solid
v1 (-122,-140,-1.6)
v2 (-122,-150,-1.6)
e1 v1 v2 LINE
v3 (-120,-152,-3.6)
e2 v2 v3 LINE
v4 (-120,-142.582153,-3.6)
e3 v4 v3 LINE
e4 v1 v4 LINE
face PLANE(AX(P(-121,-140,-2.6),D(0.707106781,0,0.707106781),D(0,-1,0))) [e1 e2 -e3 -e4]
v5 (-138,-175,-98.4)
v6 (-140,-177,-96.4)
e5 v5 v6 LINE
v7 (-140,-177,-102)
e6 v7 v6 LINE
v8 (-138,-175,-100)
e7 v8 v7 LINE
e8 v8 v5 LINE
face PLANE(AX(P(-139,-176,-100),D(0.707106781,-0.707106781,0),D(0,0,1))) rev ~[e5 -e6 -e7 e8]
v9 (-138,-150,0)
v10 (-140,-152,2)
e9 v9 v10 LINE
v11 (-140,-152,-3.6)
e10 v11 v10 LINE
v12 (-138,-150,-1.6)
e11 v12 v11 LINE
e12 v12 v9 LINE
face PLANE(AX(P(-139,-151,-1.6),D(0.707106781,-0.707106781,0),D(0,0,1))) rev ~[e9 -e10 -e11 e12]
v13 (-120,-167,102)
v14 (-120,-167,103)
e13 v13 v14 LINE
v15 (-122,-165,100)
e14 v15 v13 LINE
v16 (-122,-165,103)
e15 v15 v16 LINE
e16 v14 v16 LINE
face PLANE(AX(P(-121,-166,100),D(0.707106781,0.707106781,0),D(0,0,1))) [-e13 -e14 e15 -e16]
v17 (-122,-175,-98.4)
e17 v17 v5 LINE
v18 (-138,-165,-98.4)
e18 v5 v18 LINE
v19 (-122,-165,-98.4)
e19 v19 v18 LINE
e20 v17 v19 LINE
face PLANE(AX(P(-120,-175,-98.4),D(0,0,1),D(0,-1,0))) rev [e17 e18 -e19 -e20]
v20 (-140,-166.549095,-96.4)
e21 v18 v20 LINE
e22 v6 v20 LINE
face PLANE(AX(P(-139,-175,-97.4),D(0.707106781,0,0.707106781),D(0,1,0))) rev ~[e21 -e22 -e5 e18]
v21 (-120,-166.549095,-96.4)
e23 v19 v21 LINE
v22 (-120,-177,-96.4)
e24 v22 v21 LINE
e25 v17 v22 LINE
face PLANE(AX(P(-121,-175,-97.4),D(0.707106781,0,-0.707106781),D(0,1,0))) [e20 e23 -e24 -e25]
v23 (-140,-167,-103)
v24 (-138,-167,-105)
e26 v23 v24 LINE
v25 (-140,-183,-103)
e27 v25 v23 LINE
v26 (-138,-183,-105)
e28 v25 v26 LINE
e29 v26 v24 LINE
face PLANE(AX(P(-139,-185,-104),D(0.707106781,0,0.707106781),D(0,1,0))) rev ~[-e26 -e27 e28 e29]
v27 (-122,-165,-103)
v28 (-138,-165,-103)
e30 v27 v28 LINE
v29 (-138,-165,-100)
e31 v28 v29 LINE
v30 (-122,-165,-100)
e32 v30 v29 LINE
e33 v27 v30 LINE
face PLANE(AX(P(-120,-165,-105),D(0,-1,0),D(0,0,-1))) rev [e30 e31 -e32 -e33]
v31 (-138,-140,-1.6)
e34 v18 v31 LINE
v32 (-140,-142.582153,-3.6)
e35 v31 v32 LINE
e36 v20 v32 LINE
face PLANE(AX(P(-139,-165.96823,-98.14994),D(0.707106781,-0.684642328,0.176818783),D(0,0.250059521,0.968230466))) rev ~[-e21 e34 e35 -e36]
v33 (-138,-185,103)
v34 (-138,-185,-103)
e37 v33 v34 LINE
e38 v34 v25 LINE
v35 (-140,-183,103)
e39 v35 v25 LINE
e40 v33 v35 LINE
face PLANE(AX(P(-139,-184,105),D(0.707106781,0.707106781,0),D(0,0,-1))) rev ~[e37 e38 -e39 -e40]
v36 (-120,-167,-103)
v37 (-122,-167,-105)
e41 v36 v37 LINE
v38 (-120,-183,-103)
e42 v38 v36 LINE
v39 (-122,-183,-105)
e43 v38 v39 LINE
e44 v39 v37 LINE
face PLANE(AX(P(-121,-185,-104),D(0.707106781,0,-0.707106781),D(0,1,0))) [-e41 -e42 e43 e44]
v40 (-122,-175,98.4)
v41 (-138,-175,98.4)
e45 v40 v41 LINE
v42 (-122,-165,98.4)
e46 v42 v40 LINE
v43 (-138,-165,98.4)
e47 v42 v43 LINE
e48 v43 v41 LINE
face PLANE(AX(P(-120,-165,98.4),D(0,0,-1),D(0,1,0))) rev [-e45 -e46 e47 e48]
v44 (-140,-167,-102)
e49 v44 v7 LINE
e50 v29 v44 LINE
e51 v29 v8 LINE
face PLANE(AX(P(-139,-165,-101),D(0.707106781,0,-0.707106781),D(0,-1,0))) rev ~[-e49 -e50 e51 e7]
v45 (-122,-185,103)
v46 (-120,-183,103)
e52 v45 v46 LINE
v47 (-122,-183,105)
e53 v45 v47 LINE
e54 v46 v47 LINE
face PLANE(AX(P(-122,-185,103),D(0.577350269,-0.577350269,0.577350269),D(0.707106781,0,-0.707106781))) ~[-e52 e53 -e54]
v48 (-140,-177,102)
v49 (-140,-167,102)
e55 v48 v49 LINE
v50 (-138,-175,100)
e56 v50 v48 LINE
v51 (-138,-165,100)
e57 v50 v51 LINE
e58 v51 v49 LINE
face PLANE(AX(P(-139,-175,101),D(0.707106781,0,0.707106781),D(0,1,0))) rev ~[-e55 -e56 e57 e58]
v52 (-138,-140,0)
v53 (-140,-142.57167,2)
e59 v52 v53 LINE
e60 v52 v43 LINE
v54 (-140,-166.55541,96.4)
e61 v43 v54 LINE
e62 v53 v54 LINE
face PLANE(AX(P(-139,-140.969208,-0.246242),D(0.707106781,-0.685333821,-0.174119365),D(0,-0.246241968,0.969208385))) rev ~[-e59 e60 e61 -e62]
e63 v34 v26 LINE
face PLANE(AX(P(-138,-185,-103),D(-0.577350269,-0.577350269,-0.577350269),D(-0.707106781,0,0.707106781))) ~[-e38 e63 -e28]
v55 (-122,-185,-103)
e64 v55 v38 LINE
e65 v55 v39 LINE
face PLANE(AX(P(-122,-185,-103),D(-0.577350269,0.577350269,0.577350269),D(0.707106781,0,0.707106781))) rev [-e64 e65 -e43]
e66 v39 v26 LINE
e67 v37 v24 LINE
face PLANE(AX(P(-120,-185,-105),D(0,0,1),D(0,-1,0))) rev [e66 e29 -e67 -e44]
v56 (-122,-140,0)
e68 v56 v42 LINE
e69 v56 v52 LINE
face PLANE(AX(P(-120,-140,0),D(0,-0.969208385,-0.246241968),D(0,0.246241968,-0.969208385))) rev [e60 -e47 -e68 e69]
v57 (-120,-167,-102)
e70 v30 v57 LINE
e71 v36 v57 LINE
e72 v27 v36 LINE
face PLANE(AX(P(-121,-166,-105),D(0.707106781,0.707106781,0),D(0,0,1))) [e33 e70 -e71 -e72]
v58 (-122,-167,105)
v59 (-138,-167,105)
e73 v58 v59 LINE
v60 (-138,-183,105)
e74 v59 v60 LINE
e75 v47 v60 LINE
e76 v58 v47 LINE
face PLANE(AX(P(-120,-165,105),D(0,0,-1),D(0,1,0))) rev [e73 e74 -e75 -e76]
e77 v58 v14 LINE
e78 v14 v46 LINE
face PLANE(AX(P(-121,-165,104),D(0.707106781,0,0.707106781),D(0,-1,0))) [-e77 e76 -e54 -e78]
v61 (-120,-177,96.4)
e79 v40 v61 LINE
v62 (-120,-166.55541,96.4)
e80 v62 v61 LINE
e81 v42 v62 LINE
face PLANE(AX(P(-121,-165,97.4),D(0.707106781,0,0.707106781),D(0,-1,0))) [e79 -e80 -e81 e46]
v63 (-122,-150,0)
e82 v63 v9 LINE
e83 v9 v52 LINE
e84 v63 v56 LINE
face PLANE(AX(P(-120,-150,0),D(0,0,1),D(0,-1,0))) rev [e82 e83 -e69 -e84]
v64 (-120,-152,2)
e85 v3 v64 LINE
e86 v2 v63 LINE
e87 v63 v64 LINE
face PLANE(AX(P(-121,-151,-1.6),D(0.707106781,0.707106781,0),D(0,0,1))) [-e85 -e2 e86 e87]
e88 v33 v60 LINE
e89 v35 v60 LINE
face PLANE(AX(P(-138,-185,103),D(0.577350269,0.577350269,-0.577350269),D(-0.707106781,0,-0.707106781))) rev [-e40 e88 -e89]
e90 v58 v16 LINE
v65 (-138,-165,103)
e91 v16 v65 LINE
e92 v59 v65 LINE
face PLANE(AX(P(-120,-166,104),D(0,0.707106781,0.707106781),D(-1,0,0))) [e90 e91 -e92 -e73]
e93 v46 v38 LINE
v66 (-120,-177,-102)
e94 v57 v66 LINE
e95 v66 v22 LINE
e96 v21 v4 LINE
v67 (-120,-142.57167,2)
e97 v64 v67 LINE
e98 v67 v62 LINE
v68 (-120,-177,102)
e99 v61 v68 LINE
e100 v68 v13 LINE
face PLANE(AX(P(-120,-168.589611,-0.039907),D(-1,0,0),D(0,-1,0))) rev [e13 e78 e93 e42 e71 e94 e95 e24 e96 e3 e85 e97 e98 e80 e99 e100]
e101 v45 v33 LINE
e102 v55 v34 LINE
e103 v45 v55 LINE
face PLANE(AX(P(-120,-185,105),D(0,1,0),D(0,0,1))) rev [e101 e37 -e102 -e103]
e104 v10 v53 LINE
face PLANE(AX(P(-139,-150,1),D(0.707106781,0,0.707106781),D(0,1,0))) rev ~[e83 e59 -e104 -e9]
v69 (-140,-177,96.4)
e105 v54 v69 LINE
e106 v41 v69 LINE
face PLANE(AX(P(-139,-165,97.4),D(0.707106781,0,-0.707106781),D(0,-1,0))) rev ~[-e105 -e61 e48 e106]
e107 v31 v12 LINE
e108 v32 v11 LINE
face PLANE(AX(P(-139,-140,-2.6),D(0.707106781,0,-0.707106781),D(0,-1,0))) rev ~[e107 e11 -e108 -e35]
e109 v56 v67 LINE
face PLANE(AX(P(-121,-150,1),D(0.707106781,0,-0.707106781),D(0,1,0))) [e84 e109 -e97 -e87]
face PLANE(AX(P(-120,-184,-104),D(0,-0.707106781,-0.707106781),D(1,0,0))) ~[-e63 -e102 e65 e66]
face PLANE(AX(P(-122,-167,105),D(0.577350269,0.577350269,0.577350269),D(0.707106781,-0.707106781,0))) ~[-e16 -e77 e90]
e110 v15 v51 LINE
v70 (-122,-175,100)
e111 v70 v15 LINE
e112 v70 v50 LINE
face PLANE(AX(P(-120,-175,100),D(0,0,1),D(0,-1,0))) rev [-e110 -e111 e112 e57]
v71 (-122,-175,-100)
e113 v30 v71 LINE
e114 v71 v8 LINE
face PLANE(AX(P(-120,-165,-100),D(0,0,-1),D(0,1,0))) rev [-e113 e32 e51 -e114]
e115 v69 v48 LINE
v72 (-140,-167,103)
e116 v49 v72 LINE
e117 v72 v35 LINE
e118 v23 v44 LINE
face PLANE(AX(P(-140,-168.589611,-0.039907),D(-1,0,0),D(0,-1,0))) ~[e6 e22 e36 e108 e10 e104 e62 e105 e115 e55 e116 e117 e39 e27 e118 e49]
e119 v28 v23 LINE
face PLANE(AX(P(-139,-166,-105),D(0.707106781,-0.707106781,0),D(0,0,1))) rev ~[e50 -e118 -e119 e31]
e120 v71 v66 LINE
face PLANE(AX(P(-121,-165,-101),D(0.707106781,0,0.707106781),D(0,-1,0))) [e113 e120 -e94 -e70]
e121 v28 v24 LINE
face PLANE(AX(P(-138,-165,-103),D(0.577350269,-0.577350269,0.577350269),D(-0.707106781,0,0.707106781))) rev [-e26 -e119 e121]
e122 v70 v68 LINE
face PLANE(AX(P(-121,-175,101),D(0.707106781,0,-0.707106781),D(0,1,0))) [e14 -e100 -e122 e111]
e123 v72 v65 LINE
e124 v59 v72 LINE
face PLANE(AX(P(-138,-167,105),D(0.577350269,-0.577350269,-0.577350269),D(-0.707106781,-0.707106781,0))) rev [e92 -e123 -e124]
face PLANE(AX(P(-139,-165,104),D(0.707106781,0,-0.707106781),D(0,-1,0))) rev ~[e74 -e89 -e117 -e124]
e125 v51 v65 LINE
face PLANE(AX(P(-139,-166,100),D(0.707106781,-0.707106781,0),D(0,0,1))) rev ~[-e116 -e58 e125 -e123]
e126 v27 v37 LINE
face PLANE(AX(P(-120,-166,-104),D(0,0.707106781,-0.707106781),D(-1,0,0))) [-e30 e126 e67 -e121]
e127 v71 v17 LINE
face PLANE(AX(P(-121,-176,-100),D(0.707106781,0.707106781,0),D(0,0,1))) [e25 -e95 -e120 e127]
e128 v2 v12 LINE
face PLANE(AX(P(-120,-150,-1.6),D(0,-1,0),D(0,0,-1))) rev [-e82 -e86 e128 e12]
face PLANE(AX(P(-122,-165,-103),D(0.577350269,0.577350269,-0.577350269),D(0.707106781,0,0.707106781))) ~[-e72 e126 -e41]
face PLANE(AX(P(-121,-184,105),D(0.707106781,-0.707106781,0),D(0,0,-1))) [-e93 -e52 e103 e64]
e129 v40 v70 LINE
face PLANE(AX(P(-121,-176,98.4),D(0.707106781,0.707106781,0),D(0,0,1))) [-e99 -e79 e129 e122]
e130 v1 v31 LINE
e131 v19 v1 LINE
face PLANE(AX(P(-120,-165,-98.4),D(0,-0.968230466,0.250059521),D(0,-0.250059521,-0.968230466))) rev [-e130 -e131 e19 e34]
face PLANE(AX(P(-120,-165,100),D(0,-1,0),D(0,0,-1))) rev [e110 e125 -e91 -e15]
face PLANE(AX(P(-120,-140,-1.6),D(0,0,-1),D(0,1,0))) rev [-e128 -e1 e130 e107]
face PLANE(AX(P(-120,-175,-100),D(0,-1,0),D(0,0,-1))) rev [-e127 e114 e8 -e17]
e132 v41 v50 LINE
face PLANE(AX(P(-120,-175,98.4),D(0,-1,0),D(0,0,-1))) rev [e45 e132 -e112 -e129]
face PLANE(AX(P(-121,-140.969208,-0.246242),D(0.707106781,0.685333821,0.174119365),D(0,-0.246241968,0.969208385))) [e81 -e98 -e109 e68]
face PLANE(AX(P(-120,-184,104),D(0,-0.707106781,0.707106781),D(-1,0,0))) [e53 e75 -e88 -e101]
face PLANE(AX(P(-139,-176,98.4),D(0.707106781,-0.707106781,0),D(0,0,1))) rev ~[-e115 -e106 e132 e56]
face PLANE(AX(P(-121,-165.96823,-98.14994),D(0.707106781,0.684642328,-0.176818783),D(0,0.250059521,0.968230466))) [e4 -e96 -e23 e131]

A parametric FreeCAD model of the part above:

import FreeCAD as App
import Part
import Sketcher
from FreeCAD import Vector
Q = App.Units.Quantity


def edges_at(feature, points):
    """Names of the edges that pass closest to the given points."""
    edges = feature.Shape.Edges
    near = lambda p: min(range(len(edges)), key=lambda i: edges[i].distToShape(Part.Vertex(*p))[0])
    return sorted({f"Edge{near(p) + 1}" for p in points})


def add_polygon(sketch, points):
    """Adds a closed chain of lines whose ends are joined by coincident constraints."""
    first, n = sketch.GeometryCount, len(points)
    for a, b in zip(points, points[1:] + points[:1]):
        sketch.addGeometry(Part.LineSegment(App.Vector(*a, 0), App.Vector(*b, 0)), False)
    for i in range(n):
        sketch.addConstraint(Sketcher.Constraint("Coincident", first + i, 2, first + (i + 1) % n, 1))

doc = App.newDocument("Part")
params = doc.addObject("Spreadsheet::Sheet", "Params")
for row, (alias, value) in enumerate([
    ("sketch1_width", "20 mm"),
    ("sketch1_width2", "10 mm"),
    ("sketch1_height", "5 mm"),
    ("sketch1_height2", "210 mm"),
    ("sketch1_height3", "1.6 mm"),
    ("pad1_length", "20 mm"),
    ("chamfer_size", "2 mm"),
], start=1):
    params.set(f"A{row}", alias)
    params.set(f"B{row}", "=" + value)
    params.setAlias(f"B{row}", alias)

body = doc.addObject("PartDesign::Body", "Body")

sketch1 = doc.addObject("Sketcher::SketchObject", "Sketch")
body.addObject(sketch1)
sketch1.AttachmentSupport = (doc.XY_Plane, [""])
sketch1.MapMode = "FlatFace"
add_polygon(sketch1, [(0, -105), (20, -105), (20, -100), (10, -100), (10, -98.4), (20, -98.4), (45, -1.6), (35, -1.6), (35, 0), (45, 0), (20, 98.4), (10, 98.4), (10, 100), (20, 100), (20, 105), (0, 105)])
sketch1.addConstraint([
    Sketcher.Constraint("Horizontal", 0),
    Sketcher.Constraint("Vertical", 1),
    Sketcher.Constraint("Horizontal", 2),
    Sketcher.Constraint("Vertical", 3),
    Sketcher.Constraint("Horizontal", 4),
    Sketcher.Constraint("Horizontal", 6),
    Sketcher.Constraint("Vertical", 7),
    Sketcher.Constraint("Horizontal", 8),
    Sketcher.Constraint("Horizontal", 10),
    Sketcher.Constraint("Vertical", 11),
    Sketcher.Constraint("Horizontal", 12),
    Sketcher.Constraint("Vertical", 13),
    Sketcher.Constraint("Horizontal", 14),
    Sketcher.Constraint("Vertical", 15),
    Sketcher.Constraint("Symmetric", 14, 2, 15, 2, -1, 1),
    Sketcher.Constraint("Symmetric", 4, 2, 9, 2, -1),
    Sketcher.Constraint("Symmetric", 2, 2, 11, 2, -1),
    Sketcher.Constraint("PointOnObject", 7, 2, -1),
    Sketcher.Constraint("Vertical", 1, 2, 4, 2),
    Sketcher.Constraint("Vertical", 5, 2, 8, 2),
    Sketcher.Constraint("Vertical", 9, 2, 12, 2),
    Sketcher.Constraint("Equal", 4, 6),
    Sketcher.Constraint("Equal", 3, 7),
    Sketcher.Constraint("DistanceX", 0, 1, 0, 2, Q("20 mm")),
    Sketcher.Constraint("DistanceX", 2, 2, 2, 1, Q("10 mm")),
    Sketcher.Constraint("DistanceY", 1, 1, 1, 2, Q("5 mm")),
    Sketcher.Constraint("DistanceY", 15, 2, 15, 1, Q("210 mm")),
    Sketcher.Constraint("DistanceY", 3, 1, 3, 2, Q("1.6 mm")),
    Sketcher.Constraint("DistanceX", -1, 1, 5, 2, Q("45 mm")),
])
sketch1.setExpression("Constraints[39]", "Params.sketch1_width")
sketch1.setExpression("Constraints[40]", "Params.sketch1_width2")
sketch1.setExpression("Constraints[41]", "Params.sketch1_height")
sketch1.setExpression("Constraints[42]", "Params.sketch1_height2")
sketch1.setExpression("Constraints[43]", "Params.sketch1_height3")
pad1 = doc.addObject("PartDesign::Pad", "Pad")
body.addObject(pad1)
pad1.Profile = sketch1
pad1.setExpression("Length", "Params.pad1_length")
doc.recompute()

chamfer = doc.addObject("PartDesign::Chamfer", "Chamfer")
body.addObject(chamfer)
chamfer.Base = (pad1, edges_at(pad1, [
    (10, -105, 20),
    (20, -102.5, 20),
    (15, -100, 20),
    (10, -99.2, 20),
    (15, -98.4, 20),
    (32.5, -50, 20),
    (40, -1.6, 20),
    (35, -0.8, 20),
    (40, 0, 20),
    (32.5, 49.2, 20),
    (15, 98.4, 20),
    (10, 99.2, 20),
    (15, 100, 20),
    (20, 102.5, 20),
    (10, 105, 20),
    (0, 0, 20),
    (10, -105, 0),
    (20, -102.5, 0),
    (15, -100, 0),
    (10, -99.2, 0),
    (15, -98.4, 0),
    (32.5, -50, 0),
    (40, -1.6, 0),
    (35, -0.8, 0),
    (40, 0, 0),
    (32.5, 49.2, 0),
    (15, 98.4, 0),
    (10, 99.2, 0),
    (15, 100, 0),
    (20, 102.5, 0),
    (10, 105, 0),
    (0, 0, 0),
    (0, 105, 10),
    (0, -105, 10),
    (20, 105, 10),
    (20, -105, 10),
]))
chamfer.setExpression("Size", "Params.chamfer_size")
body2 = doc.addObject("PartDesign::Body", "Body001")
doc.recompute()

body.Placement = App.Placement(Vector(0, 0, 0), App.Rotation(Vector(1, 0, 0), 90))
boolean = doc.addObject("PartDesign::Boolean", "Boolean")
body2.addObject(boolean)
boolean.Type = "Fuse"
boolean.addObjects([body])
body3 = doc.addObject("PartDesign::Body", "Body002")
doc.recompute()

body2.Placement = App.Placement(Vector(120, -185, 0), App.Rotation(Vector(0, 0, 1), 90))
boolean2 = doc.addObject("PartDesign::Boolean", "Boolean001")
body3.addObject(boolean2)
boolean2.Type = "Fuse"
boolean2.addObjects([body2])
body4 = doc.addObject("PartDesign::Body", "Body003")
doc.recompute()

mirroring = doc.addObject("Part::Mirroring", "Mirroring")
mirroring.Source = body3
mirroring.Base = Vector(0, 0, 0)
mirroring.Normal = Vector(1, 0, 0)
body4.BaseFeature = mirroring
doc.recompute()
body3.Visibility = False
mirroring.Visibility = False

doc.recompute()
